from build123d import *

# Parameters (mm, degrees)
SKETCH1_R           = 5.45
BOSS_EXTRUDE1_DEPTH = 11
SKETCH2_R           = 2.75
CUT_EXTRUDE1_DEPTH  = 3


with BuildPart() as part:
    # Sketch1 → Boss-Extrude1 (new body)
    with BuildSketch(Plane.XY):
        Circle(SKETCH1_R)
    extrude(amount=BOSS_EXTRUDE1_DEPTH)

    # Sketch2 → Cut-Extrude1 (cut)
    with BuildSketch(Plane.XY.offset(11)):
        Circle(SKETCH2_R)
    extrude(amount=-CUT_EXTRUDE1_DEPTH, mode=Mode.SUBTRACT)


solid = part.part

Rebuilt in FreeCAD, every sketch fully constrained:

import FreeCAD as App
import Part
import Sketcher

V = App.Vector

doc = App.newDocument("Part")
body = doc.addObject("PartDesign::Body", "Body")

# Sketch on XY plane
sketch1 = body.newObject("Sketcher::SketchObject", "Sketch")
sketch1.AttachmentSupport = (doc.getObject("XY_Plane"), [""])
sketch1.MapMode = "FlatFace"
sketch1.addGeometry(Part.Circle(V(0, 0, 0), V(0, 0, 1), 5), False)
sketch1.addConstraint(Sketcher.Constraint("Coincident", 0, 3, -1, 1))
sketch1.addConstraint(Sketcher.Constraint("Diameter", 0, 10.9))
pad1 = body.newObject("PartDesign::Pad", "Pad")
pad1.Profile = sketch1
pad1.Length = 11

# Sketch on XY plane
sketch2 = body.newObject("Sketcher::SketchObject", "Sketch001")
sketch2.AttachmentSupport = (doc.getObject("XY_Plane"), [""])
sketch2.MapMode = "FlatFace"
sketch2.AttachmentOffset = App.Placement(V(0, 0, 11), App.Rotation())
sketch2.addGeometry(Part.Circle(V(0, 0, 0), V(0, 0, 1), 2.8), False)
sketch2.addConstraint(Sketcher.Constraint("Coincident", 0, 3, -1, 1))
sketch2.addConstraint(Sketcher.Constraint("Diameter", 0, 5.5))
pocket1 = body.newObject("PartDesign::Pocket", "Pocket")
pocket1.Profile = sketch2
pocket1.Length = 3

doc.recompute()
